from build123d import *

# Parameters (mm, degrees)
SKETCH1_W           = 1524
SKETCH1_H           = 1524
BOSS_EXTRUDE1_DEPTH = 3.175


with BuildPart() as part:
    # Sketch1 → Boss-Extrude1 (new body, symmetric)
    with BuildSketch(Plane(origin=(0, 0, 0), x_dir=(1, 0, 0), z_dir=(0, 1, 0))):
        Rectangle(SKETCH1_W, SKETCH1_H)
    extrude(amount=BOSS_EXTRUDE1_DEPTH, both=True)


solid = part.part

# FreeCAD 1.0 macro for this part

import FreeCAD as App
import Part
import Sketcher
Q = App.Units.Quantity

doc = App.newDocument("Part")
body = doc.addObject("PartDesign::Body", "Body")

sketch1 = doc.addObject("Sketcher::SketchObject", "Sketch")
body.addObject(sketch1)
sketch1.AttachmentSupport = (doc.XZ_Plane, [""])
sketch1.MapMode = "FlatFace"
sketch1.addGeometry([
    Part.LineSegment(App.Vector(-762, -762, 0), App.Vector(-762, 762, 0)),
    Part.LineSegment(App.Vector(-762, 762, 0), App.Vector(762, 762, 0)),
    Part.LineSegment(App.Vector(762, 762, 0), App.Vector(762, -762, 0)),
    Part.LineSegment(App.Vector(762, -762, 0), App.Vector(-762, -762, 0)),
], False)
sketch1.addConstraint([
    Sketcher.Constraint("Coincident", 0, 2, 1, 1),
    Sketcher.Constraint("Coincident", 1, 2, 2, 1),
    Sketcher.Constraint("Coincident", 2, 2, 3, 1),
    Sketcher.Constraint("Coincident", 3, 2, 0, 1),
    Sketcher.Constraint("Vertical", 0),
    Sketcher.Constraint("Horizontal", 1),
    Sketcher.Constraint("Vertical", 2),
    Sketcher.Constraint("Horizontal", 3),
    Sketcher.Constraint("Symmetric", 0, 2, 2, 2, -1, 1),
    Sketcher.Constraint("Equal", 3, 0),
    Sketcher.Constraint("DistanceX", 1, 1, 1, 2, Q("60 in")),
])
pad1 = doc.addObject("PartDesign::Pad", "Pad")
body.addObject(pad1)
pad1.Profile = sketch1
pad1.Length = Q("0.25 in")
pad1.Midplane = True

doc.recompute()
